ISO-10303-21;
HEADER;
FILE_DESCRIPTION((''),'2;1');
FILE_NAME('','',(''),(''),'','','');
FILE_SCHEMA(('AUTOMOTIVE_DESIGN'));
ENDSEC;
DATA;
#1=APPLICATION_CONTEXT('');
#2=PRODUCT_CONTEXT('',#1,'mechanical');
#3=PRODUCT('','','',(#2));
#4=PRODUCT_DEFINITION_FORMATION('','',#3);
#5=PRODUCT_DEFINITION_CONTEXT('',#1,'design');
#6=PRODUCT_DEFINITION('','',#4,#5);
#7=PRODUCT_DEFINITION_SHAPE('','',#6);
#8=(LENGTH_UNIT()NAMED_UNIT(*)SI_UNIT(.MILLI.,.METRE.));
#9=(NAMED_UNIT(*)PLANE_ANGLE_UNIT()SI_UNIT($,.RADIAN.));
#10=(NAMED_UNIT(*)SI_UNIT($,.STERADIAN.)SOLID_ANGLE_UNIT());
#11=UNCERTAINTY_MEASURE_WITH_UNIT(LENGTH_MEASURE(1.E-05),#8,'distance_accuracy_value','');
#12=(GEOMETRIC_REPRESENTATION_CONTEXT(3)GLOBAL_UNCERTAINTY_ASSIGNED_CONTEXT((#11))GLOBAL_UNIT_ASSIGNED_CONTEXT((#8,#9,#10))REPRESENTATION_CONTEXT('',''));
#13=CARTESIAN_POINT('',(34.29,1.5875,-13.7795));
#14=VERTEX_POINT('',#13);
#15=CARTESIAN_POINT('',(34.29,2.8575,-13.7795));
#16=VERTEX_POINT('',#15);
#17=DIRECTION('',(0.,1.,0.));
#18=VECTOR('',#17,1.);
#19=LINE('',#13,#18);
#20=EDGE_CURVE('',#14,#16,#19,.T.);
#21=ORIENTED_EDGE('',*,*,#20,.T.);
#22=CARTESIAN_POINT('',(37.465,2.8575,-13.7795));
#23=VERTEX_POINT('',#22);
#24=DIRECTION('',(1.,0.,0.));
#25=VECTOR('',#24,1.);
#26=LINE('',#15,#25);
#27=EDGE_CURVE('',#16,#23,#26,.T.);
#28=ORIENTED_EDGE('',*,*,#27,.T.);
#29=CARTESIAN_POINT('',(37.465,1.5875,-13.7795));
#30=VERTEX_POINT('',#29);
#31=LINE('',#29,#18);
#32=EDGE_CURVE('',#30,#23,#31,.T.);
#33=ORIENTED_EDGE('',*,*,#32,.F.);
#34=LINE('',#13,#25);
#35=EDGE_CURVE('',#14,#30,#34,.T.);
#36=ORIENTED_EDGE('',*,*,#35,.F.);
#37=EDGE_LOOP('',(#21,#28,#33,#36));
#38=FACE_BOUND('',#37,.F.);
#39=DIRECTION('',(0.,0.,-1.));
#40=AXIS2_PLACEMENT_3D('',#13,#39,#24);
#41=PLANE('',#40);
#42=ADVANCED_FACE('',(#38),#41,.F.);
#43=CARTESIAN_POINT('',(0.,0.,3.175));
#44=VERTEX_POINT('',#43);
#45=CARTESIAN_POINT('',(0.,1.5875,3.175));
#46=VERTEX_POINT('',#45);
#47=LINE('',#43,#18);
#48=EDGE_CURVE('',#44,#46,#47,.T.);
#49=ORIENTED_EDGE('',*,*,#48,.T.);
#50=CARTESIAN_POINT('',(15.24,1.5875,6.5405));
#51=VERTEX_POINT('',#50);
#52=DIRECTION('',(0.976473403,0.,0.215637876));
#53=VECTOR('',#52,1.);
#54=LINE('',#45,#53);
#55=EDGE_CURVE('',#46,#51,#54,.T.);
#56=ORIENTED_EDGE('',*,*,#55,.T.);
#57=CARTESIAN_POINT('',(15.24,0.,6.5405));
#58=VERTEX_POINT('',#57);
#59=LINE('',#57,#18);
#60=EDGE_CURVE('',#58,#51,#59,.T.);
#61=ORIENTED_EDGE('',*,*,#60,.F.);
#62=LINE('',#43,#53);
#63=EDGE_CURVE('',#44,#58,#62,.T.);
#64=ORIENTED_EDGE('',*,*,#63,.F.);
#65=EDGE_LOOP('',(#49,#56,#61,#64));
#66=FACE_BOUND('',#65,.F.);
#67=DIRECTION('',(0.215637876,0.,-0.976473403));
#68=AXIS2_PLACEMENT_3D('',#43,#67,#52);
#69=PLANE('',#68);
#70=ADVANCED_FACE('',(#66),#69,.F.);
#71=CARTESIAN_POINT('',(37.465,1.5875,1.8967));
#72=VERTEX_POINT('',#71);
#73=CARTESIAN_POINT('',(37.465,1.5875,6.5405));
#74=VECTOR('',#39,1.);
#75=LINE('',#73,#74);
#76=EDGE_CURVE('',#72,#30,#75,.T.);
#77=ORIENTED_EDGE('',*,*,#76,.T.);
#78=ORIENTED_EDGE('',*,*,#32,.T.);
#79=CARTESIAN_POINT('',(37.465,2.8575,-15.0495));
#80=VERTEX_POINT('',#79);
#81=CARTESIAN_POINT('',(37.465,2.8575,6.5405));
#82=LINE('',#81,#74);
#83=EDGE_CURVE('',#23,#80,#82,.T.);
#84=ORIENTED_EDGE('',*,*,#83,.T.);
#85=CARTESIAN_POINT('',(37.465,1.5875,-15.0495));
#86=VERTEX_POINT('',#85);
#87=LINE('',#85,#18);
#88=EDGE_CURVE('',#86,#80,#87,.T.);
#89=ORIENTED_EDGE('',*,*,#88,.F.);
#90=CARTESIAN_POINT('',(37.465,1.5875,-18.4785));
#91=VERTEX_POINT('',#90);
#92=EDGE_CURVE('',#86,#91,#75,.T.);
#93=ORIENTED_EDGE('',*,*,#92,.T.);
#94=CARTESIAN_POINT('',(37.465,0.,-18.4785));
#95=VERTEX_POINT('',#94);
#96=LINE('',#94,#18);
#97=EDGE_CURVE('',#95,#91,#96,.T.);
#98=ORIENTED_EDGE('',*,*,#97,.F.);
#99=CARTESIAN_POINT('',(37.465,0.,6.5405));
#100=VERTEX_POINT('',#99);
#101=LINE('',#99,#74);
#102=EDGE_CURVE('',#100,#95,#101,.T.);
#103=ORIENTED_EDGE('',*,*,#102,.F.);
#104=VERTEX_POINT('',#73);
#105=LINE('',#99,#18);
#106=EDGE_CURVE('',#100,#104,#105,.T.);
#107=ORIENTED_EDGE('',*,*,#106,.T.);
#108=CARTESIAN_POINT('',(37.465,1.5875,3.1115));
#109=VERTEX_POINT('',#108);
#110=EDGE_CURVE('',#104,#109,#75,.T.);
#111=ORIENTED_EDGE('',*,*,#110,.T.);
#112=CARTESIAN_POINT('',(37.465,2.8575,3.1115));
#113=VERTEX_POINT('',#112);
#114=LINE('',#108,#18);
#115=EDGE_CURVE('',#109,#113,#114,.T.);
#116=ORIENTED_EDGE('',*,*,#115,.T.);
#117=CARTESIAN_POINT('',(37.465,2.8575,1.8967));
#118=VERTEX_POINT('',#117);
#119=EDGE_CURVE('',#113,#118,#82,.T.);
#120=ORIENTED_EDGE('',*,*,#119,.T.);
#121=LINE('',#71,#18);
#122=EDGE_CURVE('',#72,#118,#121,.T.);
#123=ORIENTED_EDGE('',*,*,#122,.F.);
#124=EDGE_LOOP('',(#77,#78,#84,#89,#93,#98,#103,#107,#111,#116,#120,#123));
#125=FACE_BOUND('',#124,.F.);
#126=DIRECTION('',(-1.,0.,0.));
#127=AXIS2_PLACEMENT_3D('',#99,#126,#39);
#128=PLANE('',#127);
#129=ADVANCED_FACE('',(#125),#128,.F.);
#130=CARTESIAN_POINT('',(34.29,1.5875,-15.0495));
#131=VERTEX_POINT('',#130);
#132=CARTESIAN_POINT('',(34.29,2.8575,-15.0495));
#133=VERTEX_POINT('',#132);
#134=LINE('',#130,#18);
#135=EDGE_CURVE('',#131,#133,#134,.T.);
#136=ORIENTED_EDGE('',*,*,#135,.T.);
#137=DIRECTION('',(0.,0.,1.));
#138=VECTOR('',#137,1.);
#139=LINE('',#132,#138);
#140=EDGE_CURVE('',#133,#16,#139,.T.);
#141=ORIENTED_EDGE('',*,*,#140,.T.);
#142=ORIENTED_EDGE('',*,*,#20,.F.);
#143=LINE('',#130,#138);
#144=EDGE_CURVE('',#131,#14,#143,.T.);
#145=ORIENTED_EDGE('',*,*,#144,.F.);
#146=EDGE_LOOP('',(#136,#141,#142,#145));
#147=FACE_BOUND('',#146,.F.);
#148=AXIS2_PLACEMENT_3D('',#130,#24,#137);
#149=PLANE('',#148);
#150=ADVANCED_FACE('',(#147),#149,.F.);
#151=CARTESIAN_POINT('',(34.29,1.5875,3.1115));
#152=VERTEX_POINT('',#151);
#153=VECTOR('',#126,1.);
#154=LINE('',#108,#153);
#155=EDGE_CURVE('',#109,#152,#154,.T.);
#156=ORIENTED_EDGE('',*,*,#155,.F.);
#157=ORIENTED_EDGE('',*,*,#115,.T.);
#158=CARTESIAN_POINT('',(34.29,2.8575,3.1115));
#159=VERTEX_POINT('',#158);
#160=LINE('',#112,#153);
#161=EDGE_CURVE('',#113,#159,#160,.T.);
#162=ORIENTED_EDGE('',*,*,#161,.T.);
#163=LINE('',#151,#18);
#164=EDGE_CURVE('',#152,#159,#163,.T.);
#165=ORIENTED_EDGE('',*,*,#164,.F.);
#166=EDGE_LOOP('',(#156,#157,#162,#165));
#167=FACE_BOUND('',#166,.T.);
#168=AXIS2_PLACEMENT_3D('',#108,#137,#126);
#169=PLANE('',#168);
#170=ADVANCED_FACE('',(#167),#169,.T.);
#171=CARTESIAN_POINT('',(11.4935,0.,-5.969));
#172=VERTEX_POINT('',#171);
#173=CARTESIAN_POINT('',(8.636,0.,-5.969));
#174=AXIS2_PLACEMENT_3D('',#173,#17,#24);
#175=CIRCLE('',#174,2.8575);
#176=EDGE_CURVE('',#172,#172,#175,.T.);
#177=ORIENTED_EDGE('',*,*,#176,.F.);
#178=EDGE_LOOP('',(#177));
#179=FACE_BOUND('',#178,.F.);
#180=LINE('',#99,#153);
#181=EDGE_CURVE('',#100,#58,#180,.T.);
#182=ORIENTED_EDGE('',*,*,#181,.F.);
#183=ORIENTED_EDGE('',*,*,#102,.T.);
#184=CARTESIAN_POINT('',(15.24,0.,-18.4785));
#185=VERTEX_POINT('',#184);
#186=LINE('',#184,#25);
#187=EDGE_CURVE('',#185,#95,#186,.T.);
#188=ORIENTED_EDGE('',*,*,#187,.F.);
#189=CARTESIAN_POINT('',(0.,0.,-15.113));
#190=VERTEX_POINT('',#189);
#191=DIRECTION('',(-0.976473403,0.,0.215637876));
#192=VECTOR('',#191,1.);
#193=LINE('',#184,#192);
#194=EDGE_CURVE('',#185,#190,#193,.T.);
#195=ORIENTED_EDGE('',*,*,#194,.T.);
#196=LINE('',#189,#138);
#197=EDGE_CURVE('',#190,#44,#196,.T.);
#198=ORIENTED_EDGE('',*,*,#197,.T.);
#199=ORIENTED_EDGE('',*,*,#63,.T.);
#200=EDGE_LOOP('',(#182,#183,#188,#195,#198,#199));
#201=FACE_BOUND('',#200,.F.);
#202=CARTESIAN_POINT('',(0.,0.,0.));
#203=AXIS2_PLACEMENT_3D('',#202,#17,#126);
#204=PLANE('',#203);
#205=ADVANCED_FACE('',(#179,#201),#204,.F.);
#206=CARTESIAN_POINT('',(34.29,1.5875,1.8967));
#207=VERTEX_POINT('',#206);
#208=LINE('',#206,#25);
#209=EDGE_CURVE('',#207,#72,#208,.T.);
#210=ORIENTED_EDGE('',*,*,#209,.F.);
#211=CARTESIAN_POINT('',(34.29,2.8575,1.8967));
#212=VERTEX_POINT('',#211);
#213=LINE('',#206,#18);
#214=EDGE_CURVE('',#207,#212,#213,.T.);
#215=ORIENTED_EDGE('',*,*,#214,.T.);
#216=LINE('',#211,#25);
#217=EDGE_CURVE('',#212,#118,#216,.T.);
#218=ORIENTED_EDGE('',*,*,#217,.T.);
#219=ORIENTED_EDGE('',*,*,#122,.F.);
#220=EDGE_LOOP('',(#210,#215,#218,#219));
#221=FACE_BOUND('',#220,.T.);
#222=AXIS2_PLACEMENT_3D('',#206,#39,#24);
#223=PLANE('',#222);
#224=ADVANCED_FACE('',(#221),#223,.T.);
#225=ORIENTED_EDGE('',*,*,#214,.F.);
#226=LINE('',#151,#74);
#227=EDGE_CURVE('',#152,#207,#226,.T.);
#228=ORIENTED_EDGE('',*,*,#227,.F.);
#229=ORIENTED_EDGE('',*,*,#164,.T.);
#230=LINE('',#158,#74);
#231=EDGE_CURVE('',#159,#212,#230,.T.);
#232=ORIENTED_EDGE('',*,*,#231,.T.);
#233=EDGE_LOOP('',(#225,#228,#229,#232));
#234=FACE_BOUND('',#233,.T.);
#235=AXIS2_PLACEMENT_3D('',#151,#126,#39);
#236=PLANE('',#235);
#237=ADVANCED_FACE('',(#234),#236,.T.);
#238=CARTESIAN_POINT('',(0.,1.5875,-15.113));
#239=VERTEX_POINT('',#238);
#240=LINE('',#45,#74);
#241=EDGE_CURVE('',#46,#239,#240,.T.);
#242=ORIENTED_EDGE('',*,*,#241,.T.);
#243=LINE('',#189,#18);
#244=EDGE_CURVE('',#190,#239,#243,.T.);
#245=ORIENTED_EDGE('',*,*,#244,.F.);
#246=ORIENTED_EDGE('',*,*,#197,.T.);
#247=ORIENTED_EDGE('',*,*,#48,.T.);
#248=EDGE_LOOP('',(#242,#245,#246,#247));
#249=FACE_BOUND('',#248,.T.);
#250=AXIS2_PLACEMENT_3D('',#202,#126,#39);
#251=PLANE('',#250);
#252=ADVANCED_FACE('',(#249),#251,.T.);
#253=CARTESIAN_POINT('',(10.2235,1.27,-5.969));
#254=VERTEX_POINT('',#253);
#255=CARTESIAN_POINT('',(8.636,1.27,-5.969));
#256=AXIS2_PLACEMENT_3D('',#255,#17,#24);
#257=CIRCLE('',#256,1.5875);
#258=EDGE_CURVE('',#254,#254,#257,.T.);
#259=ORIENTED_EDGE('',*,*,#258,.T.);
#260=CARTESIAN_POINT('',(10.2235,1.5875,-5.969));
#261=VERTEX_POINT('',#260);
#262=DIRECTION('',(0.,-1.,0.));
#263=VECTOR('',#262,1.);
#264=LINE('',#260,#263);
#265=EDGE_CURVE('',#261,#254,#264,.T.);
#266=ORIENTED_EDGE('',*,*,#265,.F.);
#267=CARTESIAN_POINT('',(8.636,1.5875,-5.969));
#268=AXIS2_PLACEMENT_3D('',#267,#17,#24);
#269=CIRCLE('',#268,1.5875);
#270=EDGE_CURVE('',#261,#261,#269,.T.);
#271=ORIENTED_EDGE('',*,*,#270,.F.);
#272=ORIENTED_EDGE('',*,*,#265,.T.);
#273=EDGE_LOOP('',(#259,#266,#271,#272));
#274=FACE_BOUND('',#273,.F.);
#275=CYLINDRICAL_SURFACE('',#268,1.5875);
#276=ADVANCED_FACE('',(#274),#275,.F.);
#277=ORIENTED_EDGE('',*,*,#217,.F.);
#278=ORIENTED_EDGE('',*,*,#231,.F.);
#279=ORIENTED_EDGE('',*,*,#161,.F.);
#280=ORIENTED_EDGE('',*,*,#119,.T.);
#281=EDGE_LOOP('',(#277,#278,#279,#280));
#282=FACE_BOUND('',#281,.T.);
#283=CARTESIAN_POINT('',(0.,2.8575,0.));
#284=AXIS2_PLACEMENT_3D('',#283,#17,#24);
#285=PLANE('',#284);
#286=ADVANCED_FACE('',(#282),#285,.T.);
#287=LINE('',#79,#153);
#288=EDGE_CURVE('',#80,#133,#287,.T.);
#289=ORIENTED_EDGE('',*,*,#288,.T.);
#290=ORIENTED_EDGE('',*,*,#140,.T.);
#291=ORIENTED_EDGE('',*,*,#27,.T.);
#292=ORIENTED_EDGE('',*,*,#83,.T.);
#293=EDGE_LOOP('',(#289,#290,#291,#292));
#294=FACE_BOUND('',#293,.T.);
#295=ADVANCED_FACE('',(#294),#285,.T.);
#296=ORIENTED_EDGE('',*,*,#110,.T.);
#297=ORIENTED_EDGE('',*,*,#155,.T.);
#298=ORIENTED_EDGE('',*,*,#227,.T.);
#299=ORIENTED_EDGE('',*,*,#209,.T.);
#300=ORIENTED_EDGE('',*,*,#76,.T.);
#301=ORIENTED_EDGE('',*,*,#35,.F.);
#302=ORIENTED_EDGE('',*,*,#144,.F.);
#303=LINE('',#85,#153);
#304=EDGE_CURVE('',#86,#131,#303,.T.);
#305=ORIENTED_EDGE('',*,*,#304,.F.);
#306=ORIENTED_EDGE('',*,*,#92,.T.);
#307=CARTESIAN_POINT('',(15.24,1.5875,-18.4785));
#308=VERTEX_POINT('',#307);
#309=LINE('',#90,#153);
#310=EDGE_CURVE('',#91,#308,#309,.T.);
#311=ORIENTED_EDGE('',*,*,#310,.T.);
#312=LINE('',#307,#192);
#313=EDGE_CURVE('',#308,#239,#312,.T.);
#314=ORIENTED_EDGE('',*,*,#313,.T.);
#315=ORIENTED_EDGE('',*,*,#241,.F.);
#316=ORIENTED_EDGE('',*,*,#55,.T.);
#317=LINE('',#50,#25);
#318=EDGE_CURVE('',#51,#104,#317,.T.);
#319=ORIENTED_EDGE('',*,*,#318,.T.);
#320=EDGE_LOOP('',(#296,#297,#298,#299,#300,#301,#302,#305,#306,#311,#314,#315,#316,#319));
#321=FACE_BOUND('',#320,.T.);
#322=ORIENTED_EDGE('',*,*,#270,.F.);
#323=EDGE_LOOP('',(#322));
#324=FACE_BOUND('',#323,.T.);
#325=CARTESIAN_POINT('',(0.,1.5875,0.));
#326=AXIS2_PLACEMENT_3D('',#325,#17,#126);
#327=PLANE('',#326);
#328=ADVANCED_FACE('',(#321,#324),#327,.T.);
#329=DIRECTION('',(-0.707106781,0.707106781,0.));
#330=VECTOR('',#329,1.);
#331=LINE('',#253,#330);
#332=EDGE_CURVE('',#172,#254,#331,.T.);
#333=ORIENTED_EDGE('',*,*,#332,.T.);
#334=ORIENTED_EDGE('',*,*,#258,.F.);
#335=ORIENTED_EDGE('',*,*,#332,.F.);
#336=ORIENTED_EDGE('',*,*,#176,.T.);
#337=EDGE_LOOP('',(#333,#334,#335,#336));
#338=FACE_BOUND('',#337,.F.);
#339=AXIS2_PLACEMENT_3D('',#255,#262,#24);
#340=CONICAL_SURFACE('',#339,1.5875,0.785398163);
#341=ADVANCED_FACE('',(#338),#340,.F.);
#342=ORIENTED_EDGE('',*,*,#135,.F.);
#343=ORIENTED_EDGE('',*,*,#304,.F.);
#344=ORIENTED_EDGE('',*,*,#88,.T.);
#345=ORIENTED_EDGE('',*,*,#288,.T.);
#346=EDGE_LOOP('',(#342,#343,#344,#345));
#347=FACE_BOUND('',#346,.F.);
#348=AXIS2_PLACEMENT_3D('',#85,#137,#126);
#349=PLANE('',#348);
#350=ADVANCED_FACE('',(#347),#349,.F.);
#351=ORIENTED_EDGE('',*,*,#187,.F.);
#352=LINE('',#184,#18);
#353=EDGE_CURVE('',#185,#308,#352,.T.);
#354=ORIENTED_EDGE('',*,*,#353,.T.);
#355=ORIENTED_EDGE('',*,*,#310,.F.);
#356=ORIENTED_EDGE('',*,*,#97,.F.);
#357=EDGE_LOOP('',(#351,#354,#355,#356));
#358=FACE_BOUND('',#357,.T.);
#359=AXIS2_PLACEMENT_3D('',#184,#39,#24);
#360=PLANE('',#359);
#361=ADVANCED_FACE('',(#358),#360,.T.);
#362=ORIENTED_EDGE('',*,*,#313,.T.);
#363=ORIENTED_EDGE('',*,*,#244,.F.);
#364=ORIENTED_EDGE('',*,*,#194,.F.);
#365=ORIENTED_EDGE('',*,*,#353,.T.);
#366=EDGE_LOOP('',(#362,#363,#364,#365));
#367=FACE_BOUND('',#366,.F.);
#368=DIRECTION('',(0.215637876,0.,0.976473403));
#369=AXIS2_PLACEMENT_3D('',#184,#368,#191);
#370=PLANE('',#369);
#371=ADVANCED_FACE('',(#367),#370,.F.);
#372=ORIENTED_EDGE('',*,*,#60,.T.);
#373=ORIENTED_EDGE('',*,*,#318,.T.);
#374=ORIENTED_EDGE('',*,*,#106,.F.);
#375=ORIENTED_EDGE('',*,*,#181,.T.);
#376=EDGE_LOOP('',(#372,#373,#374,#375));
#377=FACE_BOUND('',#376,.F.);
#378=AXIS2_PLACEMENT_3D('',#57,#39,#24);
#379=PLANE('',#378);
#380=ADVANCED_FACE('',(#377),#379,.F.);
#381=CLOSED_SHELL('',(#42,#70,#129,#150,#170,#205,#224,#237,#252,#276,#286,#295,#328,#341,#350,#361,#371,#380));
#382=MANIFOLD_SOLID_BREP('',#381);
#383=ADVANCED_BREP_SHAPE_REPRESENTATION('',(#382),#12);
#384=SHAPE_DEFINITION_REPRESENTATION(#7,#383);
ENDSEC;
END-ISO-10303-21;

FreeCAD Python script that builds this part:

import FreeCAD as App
import Part
import Sketcher
Q = App.Units.Quantity


def edges_at(feature, points):
    """Names of the edges that pass closest to the given points."""
    edges = feature.Shape.Edges
    near = lambda p: min(range(len(edges)), key=lambda i: edges[i].distToShape(Part.Vertex(*p))[0])
    return sorted({f"Edge{near(p) + 1}" for p in points})


def add_polygon(sketch, points):
    """Adds a closed chain of lines whose ends are joined by coincident constraints."""
    first, n = sketch.GeometryCount, len(points)
    for a, b in zip(points, points[1:] + points[:1]):
        sketch.addGeometry(Part.LineSegment(App.Vector(*a, 0), App.Vector(*b, 0)), False)
    for i in range(n):
        sketch.addConstraint(Sketcher.Constraint("Coincident", first + i, 2, first + (i + 1) % n, 1))

doc = App.newDocument("Part")
params = doc.addObject("Spreadsheet::Sheet", "Params")
for row, (alias, value) in enumerate([
    ("sketch1_height", "0.72 in"),
    ("sketch1_width", "0.875 in"),
    ("pad1_length", "0.0625 in"),
    ("sketch2_diameter", "0.125 in"),
    ("pocket1_length", "0.0625 in"),
    ("chamfer_size", "0.05 in"),
    ("sketch3_height", "0.05 in"),
    ("sketch3_width", "0.125 in"),
    ("pad2_length", "0.05 in"),
], start=1):
    params.set(f"A{row}", alias)
    params.set(f"B{row}", "=" + value)
    params.setAlias(f"B{row}", alias)

body = doc.addObject("PartDesign::Body", "Body")

# Sketch on XZ plane
sketch1 = body.newObject("Sketcher::SketchObject", "Sketch")
sketch1.AttachmentSupport = (doc.getObject("XZ_Plane"), [""])
sketch1.MapMode = "FlatFace"
add_polygon(sketch1, [(0, 3.175), (15.24, 6.5405), (37.465, 6.5405), (37.465, -18.4785), (15.24, -18.4785), (0, -15.113)])  # lines 0-5
sketch1.addConstraint([
    Sketcher.Constraint("Horizontal", 1),
    Sketcher.Constraint("Vertical", 2),
    Sketcher.Constraint("Horizontal", 3),
    Sketcher.Constraint("Vertical", 5),
    Sketcher.Constraint("PointOnObject", 4, 2, -2),
    Sketcher.Constraint("Vertical", 0, 2, 3, 2),
    Sketcher.Constraint("Equal", 0, 4),
    Sketcher.Constraint("DistanceX", -1, 1, 0, 2, Q("0.6 in")),
    Sketcher.Constraint("DistanceY", -1, 1, 5, 2, Q("0.125 in")),
    Sketcher.Constraint("DistanceY", 5, 1, 5, 2, Q("0.72 in")),
    Sketcher.Constraint("DistanceY", 3, 2, 4, 2, Q("0.1325 in")),
    Sketcher.Constraint("DistanceX", 1, 1, 1, 2, Q("0.875 in")),
])
sketch1.setExpression("Constraints[15]", "Params.sketch1_height")
sketch1.setExpression("Constraints[17]", "Params.sketch1_width")
pad1 = body.newObject("PartDesign::Pad", "Pad")
pad1.Profile = sketch1
pad1.setExpression("Length", "Params.pad1_length")
pad1.Reversed = True

# Sketch on XZ plane
sketch2 = body.newObject("Sketcher::SketchObject", "Sketch001")
sketch2.AttachmentSupport = (doc.getObject("XZ_Plane"), [""])
sketch2.MapMode = "FlatFace"
sketch2.AttachmentOffset = App.Placement(App.Vector(0, 0, -0.0625 * 25.4), App.Rotation())
sketch2.addGeometry(Part.Circle(App.Vector(8.636, -5.969, 0), App.Vector(0, 0, 1), 1.5875), False)
sketch2.addConstraint([
    Sketcher.Constraint("Diameter", 0, Q("0.125 in")),
    Sketcher.Constraint("DistanceX", -1, 1, 0, 3, Q("0.34 in")),
    Sketcher.Constraint("DistanceY", 0, 3, -1, 1, Q("0.235 in")),
])
sketch2.setExpression("Constraints[0]", "Params.sketch2_diameter")
pocket1 = body.newObject("PartDesign::Pocket", "Pocket")
pocket1.Profile = sketch2
pocket1.setExpression("Length", "Params.pocket1_length")
pocket1.Reversed = True
doc.recompute()

chamfer = body.newObject("PartDesign::Chamfer", "Chamfer")
chamfer.Base = (pocket1, edges_at(pocket1, [(7.048, 0, -5.969)]))
chamfer.setExpression("Size", "Params.chamfer_size")

# Sketch on XZ plane
sketch3 = body.newObject("Sketcher::SketchObject", "Sketch002")
sketch3.AttachmentSupport = (doc.getObject("XZ_Plane"), [""])
sketch3.MapMode = "FlatFace"
sketch3.AttachmentOffset = App.Placement(App.Vector(0, 0, -0.0625 * 25.4), App.Rotation())
add_polygon(sketch3, [(37.465, -13.7795), (37.465, -15.0495), (34.29, -15.0495), (34.29, -13.7795)])  # lines 0-3
add_polygon(sketch3, [(34.29, 3.1115), (37.465, 3.1115), (37.465, 1.8967), (34.29, 1.8967)])  # lines 4-7
sketch3.addConstraint([
    Sketcher.Constraint("Vertical", 0),
    Sketcher.Constraint("Horizontal", 1),
    Sketcher.Constraint("Vertical", 2),
    Sketcher.Constraint("Horizontal", 3),
    Sketcher.Constraint("Horizontal", 4),
    Sketcher.Constraint("Vertical", 5),
    Sketcher.Constraint("Horizontal", 6),
    Sketcher.Constraint("Vertical", 7),
    Sketcher.Constraint("Vertical", 3, 2, 4, 2),
    Sketcher.Constraint("Vertical", 2, 2, 6, 2),
    Sketcher.Constraint("DistanceY", 0, 2, 0, 1, Q("0.05 in")),
    Sketcher.Constraint("DistanceX", 1, 2, 1, 1, Q("0.125 in")),
    Sketcher.Constraint("DistanceX", -1, 1, 1, 2, Q("1.35 in")),
    Sketcher.Constraint("DistanceY", 3, 2, 4, 2, Q("0.665 in")),
    Sketcher.Constraint("DistanceY", 5, 2, 5, 1, Q("1.2148 mm")),
    Sketcher.Constraint("DistanceY", 0, 2, -1, 1, Q("0.5925 in")),
])
sketch3.setExpression("Constraints[18]", "Params.sketch3_height")
sketch3.setExpression("Constraints[19]", "Params.sketch3_width")
pad2 = body.newObject("PartDesign::Pad", "Pad001")
pad2.Profile = sketch3
pad2.setExpression("Length", "Params.pad2_length")
pad2.Reversed = True

doc.recompute()
